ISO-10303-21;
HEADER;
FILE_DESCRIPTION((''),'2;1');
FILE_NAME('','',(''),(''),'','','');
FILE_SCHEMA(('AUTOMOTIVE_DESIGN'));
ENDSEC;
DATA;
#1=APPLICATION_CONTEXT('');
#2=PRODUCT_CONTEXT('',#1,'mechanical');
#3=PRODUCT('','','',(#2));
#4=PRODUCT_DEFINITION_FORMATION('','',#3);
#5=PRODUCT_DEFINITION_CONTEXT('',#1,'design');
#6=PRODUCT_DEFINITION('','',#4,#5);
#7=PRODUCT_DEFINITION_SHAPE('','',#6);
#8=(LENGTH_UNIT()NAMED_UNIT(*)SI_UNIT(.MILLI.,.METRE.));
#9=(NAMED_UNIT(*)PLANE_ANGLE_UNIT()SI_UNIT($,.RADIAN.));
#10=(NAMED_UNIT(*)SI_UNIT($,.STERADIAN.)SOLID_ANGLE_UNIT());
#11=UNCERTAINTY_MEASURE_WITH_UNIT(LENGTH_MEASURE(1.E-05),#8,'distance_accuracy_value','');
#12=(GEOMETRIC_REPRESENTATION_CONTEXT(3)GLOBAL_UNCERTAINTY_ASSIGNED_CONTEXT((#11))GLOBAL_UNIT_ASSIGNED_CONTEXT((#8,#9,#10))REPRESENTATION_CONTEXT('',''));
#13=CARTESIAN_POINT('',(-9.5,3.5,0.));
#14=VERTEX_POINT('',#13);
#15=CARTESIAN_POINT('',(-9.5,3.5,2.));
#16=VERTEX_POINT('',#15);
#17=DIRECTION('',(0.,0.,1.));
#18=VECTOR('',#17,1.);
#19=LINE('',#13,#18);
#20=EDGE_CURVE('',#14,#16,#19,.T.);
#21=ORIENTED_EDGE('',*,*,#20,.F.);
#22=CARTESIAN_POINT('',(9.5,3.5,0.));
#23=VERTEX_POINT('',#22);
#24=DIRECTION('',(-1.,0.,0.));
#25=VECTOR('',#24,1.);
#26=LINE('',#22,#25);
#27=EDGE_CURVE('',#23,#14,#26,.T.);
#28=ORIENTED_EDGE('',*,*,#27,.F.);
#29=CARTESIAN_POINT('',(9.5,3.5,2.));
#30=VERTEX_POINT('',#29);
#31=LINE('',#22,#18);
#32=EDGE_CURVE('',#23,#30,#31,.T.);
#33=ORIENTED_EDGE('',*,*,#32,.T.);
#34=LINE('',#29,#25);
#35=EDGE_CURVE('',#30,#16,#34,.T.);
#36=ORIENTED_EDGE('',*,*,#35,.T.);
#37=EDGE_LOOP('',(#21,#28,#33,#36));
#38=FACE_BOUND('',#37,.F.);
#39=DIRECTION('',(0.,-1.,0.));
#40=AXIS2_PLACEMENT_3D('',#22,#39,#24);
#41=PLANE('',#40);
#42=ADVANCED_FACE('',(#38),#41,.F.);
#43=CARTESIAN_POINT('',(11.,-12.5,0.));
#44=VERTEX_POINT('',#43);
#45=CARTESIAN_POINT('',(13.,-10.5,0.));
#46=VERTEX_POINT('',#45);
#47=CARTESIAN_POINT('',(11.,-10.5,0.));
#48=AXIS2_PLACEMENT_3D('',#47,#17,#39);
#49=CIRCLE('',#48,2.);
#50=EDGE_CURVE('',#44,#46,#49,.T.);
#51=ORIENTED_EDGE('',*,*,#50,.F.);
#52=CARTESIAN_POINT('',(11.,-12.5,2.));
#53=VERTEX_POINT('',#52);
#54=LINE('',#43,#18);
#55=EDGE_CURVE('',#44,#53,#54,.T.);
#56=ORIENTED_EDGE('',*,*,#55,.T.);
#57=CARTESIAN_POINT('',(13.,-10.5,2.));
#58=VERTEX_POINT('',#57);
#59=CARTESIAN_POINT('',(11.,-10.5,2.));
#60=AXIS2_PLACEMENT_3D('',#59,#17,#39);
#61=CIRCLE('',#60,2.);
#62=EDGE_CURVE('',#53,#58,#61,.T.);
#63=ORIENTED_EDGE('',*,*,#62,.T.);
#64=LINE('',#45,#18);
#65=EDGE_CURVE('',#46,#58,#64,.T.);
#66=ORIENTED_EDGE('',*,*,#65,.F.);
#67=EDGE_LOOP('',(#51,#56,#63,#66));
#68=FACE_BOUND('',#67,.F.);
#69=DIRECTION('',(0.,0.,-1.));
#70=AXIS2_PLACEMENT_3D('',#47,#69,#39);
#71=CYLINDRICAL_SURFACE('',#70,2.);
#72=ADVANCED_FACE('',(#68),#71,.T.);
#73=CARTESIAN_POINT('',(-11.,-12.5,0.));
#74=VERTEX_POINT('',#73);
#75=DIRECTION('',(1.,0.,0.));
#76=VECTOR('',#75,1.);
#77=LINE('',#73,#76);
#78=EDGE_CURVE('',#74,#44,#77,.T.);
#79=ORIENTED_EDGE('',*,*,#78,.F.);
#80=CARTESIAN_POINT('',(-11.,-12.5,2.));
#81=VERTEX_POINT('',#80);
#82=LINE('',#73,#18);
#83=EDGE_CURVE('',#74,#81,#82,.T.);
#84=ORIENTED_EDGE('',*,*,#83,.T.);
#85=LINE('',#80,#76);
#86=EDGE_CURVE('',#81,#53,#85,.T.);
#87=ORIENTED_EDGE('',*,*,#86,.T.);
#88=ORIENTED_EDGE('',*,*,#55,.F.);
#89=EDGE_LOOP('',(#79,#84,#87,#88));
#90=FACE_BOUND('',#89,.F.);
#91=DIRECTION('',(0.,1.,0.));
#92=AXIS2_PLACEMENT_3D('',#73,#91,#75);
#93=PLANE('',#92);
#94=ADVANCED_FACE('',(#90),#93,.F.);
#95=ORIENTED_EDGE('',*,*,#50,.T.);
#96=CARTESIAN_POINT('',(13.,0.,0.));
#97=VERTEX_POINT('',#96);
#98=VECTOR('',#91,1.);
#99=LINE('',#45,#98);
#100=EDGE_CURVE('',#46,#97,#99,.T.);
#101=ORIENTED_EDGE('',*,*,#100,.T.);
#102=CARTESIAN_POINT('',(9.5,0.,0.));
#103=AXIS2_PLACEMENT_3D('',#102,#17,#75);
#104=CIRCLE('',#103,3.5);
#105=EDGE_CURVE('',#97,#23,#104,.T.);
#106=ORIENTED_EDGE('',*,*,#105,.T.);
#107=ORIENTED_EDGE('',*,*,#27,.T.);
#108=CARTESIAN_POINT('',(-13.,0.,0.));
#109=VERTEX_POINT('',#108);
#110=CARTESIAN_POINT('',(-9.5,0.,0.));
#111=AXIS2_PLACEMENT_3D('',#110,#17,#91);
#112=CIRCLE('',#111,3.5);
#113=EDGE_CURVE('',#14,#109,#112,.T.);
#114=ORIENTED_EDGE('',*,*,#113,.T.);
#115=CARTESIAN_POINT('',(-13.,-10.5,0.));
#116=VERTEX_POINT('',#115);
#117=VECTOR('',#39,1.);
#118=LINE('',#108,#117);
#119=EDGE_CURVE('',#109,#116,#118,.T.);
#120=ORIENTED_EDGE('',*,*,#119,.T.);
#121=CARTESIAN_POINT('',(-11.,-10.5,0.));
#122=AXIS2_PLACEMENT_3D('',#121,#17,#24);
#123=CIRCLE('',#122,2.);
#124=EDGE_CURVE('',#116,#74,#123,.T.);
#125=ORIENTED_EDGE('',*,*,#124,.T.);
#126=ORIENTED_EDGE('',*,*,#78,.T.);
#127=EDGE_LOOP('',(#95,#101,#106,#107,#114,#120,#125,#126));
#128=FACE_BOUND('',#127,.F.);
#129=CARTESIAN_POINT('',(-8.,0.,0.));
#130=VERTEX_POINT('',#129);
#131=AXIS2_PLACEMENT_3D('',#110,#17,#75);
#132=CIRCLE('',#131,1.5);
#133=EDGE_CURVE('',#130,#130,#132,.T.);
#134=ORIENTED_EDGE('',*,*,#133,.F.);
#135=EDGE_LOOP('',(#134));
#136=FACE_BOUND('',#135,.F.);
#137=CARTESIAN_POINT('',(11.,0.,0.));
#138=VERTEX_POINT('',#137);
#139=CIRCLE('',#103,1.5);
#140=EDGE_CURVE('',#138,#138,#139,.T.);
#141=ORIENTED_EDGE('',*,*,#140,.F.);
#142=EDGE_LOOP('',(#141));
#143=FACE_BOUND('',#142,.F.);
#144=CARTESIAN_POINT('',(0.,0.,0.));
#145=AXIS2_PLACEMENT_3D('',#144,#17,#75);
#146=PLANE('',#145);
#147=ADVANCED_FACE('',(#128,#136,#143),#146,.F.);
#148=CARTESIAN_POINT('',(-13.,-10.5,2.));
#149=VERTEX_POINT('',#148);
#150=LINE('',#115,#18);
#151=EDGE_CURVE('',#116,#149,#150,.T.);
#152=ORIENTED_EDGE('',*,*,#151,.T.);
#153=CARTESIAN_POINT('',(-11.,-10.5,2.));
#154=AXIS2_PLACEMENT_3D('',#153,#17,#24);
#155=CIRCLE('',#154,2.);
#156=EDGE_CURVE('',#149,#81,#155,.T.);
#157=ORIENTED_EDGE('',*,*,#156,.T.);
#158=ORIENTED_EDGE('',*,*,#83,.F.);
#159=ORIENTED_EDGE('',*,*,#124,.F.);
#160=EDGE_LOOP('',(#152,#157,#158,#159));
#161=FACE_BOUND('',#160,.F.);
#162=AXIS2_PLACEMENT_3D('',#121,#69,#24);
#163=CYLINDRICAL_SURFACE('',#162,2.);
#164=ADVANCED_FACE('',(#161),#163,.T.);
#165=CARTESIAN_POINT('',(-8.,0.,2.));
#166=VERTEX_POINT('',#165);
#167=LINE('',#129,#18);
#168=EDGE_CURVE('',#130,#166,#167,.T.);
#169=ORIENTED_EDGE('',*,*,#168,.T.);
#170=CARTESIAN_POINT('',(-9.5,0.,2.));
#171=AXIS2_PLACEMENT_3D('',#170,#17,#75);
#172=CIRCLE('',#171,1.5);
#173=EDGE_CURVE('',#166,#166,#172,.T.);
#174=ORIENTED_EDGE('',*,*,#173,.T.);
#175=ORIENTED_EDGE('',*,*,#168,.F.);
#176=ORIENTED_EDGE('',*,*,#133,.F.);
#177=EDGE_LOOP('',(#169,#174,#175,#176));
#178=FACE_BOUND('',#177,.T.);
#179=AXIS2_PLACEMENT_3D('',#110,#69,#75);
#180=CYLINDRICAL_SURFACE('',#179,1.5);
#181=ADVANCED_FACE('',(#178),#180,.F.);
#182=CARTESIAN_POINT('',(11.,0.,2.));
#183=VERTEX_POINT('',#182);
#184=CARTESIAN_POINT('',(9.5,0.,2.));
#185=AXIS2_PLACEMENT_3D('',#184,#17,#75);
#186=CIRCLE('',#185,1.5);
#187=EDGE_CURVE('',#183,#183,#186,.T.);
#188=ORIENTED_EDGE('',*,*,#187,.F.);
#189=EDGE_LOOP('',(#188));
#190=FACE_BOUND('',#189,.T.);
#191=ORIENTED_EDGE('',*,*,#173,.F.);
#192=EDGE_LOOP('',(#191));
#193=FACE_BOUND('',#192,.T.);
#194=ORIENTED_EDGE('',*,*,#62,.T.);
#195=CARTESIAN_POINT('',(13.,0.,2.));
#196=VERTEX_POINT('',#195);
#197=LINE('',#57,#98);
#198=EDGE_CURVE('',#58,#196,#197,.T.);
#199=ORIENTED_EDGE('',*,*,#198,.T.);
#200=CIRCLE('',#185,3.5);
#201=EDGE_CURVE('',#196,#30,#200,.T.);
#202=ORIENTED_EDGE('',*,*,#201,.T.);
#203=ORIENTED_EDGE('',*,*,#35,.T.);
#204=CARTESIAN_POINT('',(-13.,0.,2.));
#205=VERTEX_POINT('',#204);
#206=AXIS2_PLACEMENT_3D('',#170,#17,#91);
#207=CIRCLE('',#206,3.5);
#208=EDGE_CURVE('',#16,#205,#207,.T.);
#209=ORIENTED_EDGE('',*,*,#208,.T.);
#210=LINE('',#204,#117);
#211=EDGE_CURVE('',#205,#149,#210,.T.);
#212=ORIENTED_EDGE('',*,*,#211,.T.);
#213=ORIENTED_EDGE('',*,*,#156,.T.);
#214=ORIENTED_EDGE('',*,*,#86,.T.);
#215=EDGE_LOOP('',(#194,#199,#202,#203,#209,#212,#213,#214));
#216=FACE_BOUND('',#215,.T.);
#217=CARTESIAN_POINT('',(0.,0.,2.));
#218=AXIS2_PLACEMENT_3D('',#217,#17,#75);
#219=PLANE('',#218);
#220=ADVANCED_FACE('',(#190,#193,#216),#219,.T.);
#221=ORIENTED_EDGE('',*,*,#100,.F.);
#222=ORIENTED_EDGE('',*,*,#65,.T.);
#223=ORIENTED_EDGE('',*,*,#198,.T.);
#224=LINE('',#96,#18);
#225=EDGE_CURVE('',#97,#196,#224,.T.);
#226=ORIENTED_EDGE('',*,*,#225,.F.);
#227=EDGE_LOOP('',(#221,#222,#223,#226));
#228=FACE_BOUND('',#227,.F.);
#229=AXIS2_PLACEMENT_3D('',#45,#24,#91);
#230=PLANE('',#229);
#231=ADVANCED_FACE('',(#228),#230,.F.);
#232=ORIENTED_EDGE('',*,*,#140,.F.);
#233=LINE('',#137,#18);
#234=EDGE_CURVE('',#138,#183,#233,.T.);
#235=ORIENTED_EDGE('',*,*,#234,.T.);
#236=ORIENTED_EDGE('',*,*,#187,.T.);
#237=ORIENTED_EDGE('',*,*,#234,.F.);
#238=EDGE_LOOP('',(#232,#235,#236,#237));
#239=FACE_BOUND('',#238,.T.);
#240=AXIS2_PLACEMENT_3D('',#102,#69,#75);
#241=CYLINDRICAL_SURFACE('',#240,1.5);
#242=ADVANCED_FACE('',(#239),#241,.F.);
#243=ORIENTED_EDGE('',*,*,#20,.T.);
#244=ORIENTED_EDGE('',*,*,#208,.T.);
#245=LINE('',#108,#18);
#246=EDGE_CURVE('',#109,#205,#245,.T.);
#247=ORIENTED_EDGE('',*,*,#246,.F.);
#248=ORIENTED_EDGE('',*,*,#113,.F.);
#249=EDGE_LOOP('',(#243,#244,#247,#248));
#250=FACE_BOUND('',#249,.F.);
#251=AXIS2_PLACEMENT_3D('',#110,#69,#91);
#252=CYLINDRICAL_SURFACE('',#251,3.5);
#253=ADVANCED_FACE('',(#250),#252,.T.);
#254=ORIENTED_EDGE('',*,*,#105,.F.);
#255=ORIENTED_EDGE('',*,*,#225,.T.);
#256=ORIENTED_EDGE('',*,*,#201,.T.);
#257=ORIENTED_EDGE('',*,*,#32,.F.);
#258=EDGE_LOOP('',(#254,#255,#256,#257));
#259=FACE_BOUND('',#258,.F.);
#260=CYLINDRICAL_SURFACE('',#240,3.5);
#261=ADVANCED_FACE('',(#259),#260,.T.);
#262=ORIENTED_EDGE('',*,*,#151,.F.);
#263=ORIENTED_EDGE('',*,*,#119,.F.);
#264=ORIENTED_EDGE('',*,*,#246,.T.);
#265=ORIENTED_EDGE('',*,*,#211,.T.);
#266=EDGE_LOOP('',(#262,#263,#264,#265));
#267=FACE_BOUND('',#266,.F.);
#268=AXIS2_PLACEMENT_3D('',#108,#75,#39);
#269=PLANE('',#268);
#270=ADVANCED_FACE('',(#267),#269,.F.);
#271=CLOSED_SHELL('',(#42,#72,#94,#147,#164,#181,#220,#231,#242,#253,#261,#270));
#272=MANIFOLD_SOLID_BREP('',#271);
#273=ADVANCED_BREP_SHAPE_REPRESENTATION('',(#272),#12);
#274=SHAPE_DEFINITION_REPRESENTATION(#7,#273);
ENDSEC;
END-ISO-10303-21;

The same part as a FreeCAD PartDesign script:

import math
import FreeCAD as App
import Part
import Sketcher
from FreeCAD import Vector
Q = App.Units.Quantity

doc = App.newDocument("Part")
params = doc.addObject("Spreadsheet::Sheet", "Params")
for row, (alias, value) in enumerate([
    ("sketch1_diameter", "3 mm"),
    ("sketch1_radius", "2 mm"),
    ("sketch1_width", "22 mm"),
    ("sketch1_height", "10.5 mm"),
    ("pad1_length", "2 mm"),
], start=1):
    params.set(f"A{row}", alias)
    params.set(f"B{row}", "=" + value)
    params.setAlias(f"B{row}", alias)

body = doc.addObject("PartDesign::Body", "Body")

# Sketch on XY plane
sketch1 = doc.addObject("Sketcher::SketchObject", "Sketch")
body.addObject(sketch1)
sketch1.AttachmentSupport = (doc.XY_Plane, [""])
sketch1.MapMode = "FlatFace"
sketch1.addGeometry(Part.LineSegment(Vector(9.5, 3.5, 0), Vector(-9.5, 3.5, 0)), False)
sketch1.addGeometry(Part.ArcOfCircle(Part.Circle(Vector(-9.5, 0, 0), Vector(0, 0, 1), 3.5), math.radians(90), math.radians(180)), False)
sketch1.addGeometry(Part.LineSegment(Vector(-13, 0, 0), Vector(-13, -10.5, 0)), False)
sketch1.addGeometry(Part.ArcOfCircle(Part.Circle(Vector(-11, -10.5, 0), Vector(0, 0, 1), 2), math.radians(180), math.radians(270)), False)
sketch1.addGeometry(Part.LineSegment(Vector(-11, -12.5, 0), Vector(11, -12.5, 0)), False)
sketch1.addGeometry(Part.ArcOfCircle(Part.Circle(Vector(11, -10.5, 0), Vector(0, 0, 1), 2), math.radians(-90), math.radians(0)), False)
sketch1.addGeometry(Part.LineSegment(Vector(13, -10.5, 0), Vector(13, 0, 0)), False)
sketch1.addGeometry(Part.ArcOfCircle(Part.Circle(Vector(9.5, 0, 0), Vector(0, 0, 1), 3.5), math.radians(0), math.radians(90)), False)
sketch1.addGeometry(Part.Circle(Vector(-9.5, 0, 0), Vector(0, 0, 1), 1.5), False)
sketch1.addGeometry(Part.Circle(Vector(9.5, 0, 0), Vector(0, 0, 1), 1.5), False)
sketch1.addConstraint(Sketcher.Constraint("Tangent", 0, 2, 1, 1))
sketch1.addConstraint(Sketcher.Constraint("Tangent", 1, 2, 2, 1))
sketch1.addConstraint(Sketcher.Constraint("Tangent", 2, 2, 3, 1))
sketch1.addConstraint(Sketcher.Constraint("Tangent", 3, 2, 4, 1))
sketch1.addConstraint(Sketcher.Constraint("Tangent", 4, 2, 5, 1))
sketch1.addConstraint(Sketcher.Constraint("Tangent", 5, 2, 6, 1))
sketch1.addConstraint(Sketcher.Constraint("Tangent", 6, 2, 7, 1))
sketch1.addConstraint(Sketcher.Constraint("Tangent", 7, 2, 0, 1))
sketch1.addConstraint(Sketcher.Constraint("Horizontal", 0))
sketch1.addConstraint(Sketcher.Constraint("Vertical", 2))
sketch1.addConstraint(Sketcher.Constraint("Horizontal", 4))
sketch1.addConstraint(Sketcher.Constraint("Vertical", 6))
sketch1.addConstraint(Sketcher.Constraint("Coincident", 8, 3, 1, 3))
sketch1.addConstraint(Sketcher.Constraint("Coincident", 9, 3, 7, 3))
sketch1.addConstraint(Sketcher.Constraint("Equal", 3, 5))
sketch1.addConstraint(Sketcher.Constraint("Equal", 1, 7))
sketch1.addConstraint(Sketcher.Constraint("Equal", 8, 9))
sketch1.addConstraint(Sketcher.Constraint("Symmetric", 1, 3, 7, 3, -1, 1))
sketch1.addConstraint(Sketcher.Constraint("Diameter", 8, Q("3 mm")))
sketch1.addConstraint(Sketcher.Constraint("Radius", 3, Q("2 mm")))
sketch1.addConstraint(Sketcher.Constraint("DistanceX", 4, 1, 4, 2, Q("22 mm")))
sketch1.addConstraint(Sketcher.Constraint("DistanceX", 1, 3, -1, 1, Q("9.5 mm")))
sketch1.addConstraint(Sketcher.Constraint("DistanceY", 2, 2, 2, 1, Q("10.5 mm")))
sketch1.setExpression("Constraints[18]", "Params.sketch1_diameter")
sketch1.setExpression("Constraints[19]", "Params.sketch1_radius")
sketch1.setExpression("Constraints[20]", "Params.sketch1_width")
sketch1.setExpression("Constraints[22]", "Params.sketch1_height")
pad1 = doc.addObject("PartDesign::Pad", "Pad")
body.addObject(pad1)
pad1.Profile = sketch1
pad1.setExpression("Length", "Params.pad1_length")

doc.recompute()
